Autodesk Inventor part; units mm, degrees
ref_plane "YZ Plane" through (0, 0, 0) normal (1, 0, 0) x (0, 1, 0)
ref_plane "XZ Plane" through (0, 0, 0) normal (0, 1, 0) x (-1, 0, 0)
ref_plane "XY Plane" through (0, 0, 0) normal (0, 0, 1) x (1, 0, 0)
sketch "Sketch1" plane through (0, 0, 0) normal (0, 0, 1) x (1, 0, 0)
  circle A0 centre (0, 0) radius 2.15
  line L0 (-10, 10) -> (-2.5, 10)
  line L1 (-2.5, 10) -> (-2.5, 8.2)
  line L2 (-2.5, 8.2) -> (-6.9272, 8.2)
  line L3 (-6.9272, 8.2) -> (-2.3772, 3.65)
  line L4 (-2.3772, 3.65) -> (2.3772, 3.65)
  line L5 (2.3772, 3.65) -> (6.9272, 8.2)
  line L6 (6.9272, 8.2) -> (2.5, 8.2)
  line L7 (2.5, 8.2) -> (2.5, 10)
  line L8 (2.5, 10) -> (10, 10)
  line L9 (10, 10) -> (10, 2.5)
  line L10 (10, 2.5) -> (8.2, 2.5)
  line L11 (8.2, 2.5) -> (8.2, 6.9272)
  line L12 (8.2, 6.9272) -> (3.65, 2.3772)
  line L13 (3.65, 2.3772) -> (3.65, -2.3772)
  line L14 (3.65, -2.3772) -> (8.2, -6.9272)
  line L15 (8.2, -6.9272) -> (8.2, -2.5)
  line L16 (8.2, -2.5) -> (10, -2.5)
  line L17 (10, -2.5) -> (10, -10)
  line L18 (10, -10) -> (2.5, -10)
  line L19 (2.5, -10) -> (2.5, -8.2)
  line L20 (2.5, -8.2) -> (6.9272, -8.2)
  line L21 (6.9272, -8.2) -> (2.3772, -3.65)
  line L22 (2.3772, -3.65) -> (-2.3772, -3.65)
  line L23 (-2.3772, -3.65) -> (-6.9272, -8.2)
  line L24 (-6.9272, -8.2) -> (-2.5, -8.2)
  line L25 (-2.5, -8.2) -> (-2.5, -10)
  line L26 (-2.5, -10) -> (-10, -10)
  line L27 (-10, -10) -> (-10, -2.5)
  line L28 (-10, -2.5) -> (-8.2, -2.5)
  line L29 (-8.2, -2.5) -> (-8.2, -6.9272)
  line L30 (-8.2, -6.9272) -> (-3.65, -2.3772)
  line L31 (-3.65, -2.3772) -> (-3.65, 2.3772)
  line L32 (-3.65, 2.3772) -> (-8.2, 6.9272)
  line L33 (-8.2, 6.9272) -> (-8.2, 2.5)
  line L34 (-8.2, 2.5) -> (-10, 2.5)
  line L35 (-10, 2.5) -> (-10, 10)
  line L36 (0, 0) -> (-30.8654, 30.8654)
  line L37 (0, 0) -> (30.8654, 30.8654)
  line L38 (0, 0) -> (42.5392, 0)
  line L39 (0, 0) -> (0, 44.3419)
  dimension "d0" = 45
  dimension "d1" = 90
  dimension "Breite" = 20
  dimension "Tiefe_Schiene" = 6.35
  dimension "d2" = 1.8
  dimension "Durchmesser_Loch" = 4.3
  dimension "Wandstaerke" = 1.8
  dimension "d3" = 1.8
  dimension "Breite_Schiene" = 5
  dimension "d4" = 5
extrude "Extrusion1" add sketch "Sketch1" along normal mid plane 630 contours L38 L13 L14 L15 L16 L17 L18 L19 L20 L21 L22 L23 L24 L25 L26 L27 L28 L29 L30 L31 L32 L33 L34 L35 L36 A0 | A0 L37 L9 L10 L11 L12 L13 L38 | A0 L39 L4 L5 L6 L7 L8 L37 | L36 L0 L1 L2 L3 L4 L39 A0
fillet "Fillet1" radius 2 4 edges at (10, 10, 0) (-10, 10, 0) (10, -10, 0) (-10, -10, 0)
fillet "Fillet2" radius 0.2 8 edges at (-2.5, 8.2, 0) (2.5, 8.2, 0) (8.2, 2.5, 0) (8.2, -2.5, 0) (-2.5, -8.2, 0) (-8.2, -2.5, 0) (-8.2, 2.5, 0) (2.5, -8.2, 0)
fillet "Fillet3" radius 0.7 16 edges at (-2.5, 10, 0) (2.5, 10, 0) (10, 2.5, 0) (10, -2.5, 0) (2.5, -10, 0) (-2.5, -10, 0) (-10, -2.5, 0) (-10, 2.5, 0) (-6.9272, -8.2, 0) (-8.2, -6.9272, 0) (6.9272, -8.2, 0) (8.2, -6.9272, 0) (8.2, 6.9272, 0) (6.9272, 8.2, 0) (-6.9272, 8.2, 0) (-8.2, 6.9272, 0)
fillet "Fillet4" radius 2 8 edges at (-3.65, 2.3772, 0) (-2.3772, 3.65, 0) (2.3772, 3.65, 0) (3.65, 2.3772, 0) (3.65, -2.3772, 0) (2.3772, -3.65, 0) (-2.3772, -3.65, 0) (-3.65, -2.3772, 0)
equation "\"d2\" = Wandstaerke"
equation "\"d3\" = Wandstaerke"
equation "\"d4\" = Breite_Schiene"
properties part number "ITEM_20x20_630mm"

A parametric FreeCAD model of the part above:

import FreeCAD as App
import Part
import Sketcher
from FreeCAD import Vector


def edges_at(feature, points):
    """Names of the edges that pass closest to the given points."""
    edges = feature.Shape.Edges
    near = lambda p: min(range(len(edges)), key=lambda i: edges[i].distToShape(Part.Vertex(*p))[0])
    return sorted({f"Edge{near(p) + 1}" for p in points})

doc = App.newDocument("Part")
params = doc.addObject("Spreadsheet::Sheet", "Params")
for row, (alias, value) in enumerate([
    ("sketch1_diameter", "4.3 mm"),
    ("sketch1_width", "1.8 mm"),
    ("sketch1_width2", "7.5 mm"),
    ("pad1_length", "630 mm"),
    ("fillet_radius", "2 mm"),
    ("fillet2_radius", "0.2 mm"),
    ("fillet3_radius", "0.7 mm"),
    ("fillet4_radius", "2 mm"),
], start=1):
    params.set(f"A{row}", alias)
    params.set(f"B{row}", "=" + value)
    params.setAlias(f"B{row}", alias)

body = doc.addObject("PartDesign::Body", "Body")

sketch1 = body.newObject("Sketcher::SketchObject", "Sketch")
sketch1.AttachmentSupport = (doc.getObject("XY_Plane"), [""])
sketch1.MapMode = "FlatFace"
sketch1.addGeometry([
    Part.LineSegment(Vector(3.6, -2.4, 0), Vector(3.6, 2.4, 0)),
    Part.LineSegment(Vector(3.6, 2.4, 0), Vector(8.2, 6.9, 0)),
    Part.LineSegment(Vector(8.2, 6.9, 0), Vector(8.2, 2.5, 0)),
    Part.LineSegment(Vector(8.2, 2.5, 0), Vector(10, 2.5, 0)),
    Part.LineSegment(Vector(10, 2.5, 0), Vector(10, 10, 0)),
    Part.LineSegment(Vector(10, 10, 0), Vector(2.5, 10, 0)),
    Part.LineSegment(Vector(2.5, 10, 0), Vector(2.5, 8.2, 0)),
    Part.LineSegment(Vector(2.5, 8.2, 0), Vector(6.9, 8.2, 0)),
    Part.LineSegment(Vector(6.9, 8.2, 0), Vector(2.4, 3.6, 0)),
    Part.LineSegment(Vector(2.4, 3.6, 0), Vector(-2.4, 3.6, 0)),
    Part.LineSegment(Vector(-2.4, 3.6, 0), Vector(-6.9, 8.2, 0)),
    Part.LineSegment(Vector(-6.9, 8.2, 0), Vector(-2.5, 8.2, 0)),
    Part.LineSegment(Vector(-2.5, 8.2, 0), Vector(-2.5, 10, 0)),
    Part.LineSegment(Vector(-2.5, 10, 0), Vector(-10, 10, 0)),
    Part.LineSegment(Vector(-10, 10, 0), Vector(-10, 2.5, 0)),
    Part.LineSegment(Vector(-10, 2.5, 0), Vector(-8.2, 2.5, 0)),
    Part.LineSegment(Vector(-8.2, 2.5, 0), Vector(-8.2, 6.9, 0)),
    Part.LineSegment(Vector(-8.2, 6.9, 0), Vector(-3.6, 2.4, 0)),
    Part.LineSegment(Vector(-3.6, 2.4, 0), Vector(-3.6, -2.4, 0)),
    Part.LineSegment(Vector(-3.6, -2.4, 0), Vector(-8.2, -6.9, 0)),
    Part.LineSegment(Vector(-8.2, -6.9, 0), Vector(-8.2, -2.5, 0)),
    Part.LineSegment(Vector(-8.2, -2.5, 0), Vector(-10, -2.5, 0)),
    Part.LineSegment(Vector(-10, -2.5, 0), Vector(-10, -10, 0)),
    Part.LineSegment(Vector(-10, -10, 0), Vector(-2.5, -10, 0)),
    Part.LineSegment(Vector(-2.5, -10, 0), Vector(-2.5, -8.2, 0)),
    Part.LineSegment(Vector(-2.5, -8.2, 0), Vector(-6.9, -8.2, 0)),
    Part.LineSegment(Vector(-6.9, -8.2, 0), Vector(-2.4, -3.6, 0)),
    Part.LineSegment(Vector(-2.4, -3.6, 0), Vector(2.4, -3.6, 0)),
    Part.LineSegment(Vector(2.4, -3.6, 0), Vector(6.9, -8.2, 0)),
    Part.LineSegment(Vector(6.9, -8.2, 0), Vector(2.5, -8.2, 0)),
    Part.LineSegment(Vector(2.5, -8.2, 0), Vector(2.5, -10, 0)),
    Part.LineSegment(Vector(2.5, -10, 0), Vector(10, -10, 0)),
    Part.LineSegment(Vector(10, -10, 0), Vector(10, -2.5, 0)),
    Part.LineSegment(Vector(10, -2.5, 0), Vector(8.2, -2.5, 0)),
    Part.LineSegment(Vector(8.2, -2.5, 0), Vector(8.2, -6.9, 0)),
    Part.LineSegment(Vector(8.2, -6.9, 0), Vector(3.6, -2.4, 0)),
    Part.Circle(Vector(0, 0, 0), Vector(0, 0, 1), 2.1),
], False)
sketch1.addConstraint([
    Sketcher.Constraint("Coincident", 0, 2, 1, 1),
    Sketcher.Constraint("Coincident", 1, 2, 2, 1),
    Sketcher.Constraint("Coincident", 2, 2, 3, 1),
    Sketcher.Constraint("Coincident", 3, 2, 4, 1),
    Sketcher.Constraint("Coincident", 4, 2, 5, 1),
    Sketcher.Constraint("Coincident", 5, 2, 6, 1),
    Sketcher.Constraint("Coincident", 6, 2, 7, 1),
    Sketcher.Constraint("Coincident", 7, 2, 8, 1),
    Sketcher.Constraint("Coincident", 8, 2, 9, 1),
    Sketcher.Constraint("Coincident", 9, 2, 10, 1),
    Sketcher.Constraint("Coincident", 10, 2, 11, 1),
    Sketcher.Constraint("Coincident", 11, 2, 12, 1),
    Sketcher.Constraint("Coincident", 12, 2, 13, 1),
    Sketcher.Constraint("Coincident", 13, 2, 14, 1),
    Sketcher.Constraint("Coincident", 14, 2, 15, 1),
    Sketcher.Constraint("Coincident", 15, 2, 16, 1),
    Sketcher.Constraint("Coincident", 16, 2, 17, 1),
    Sketcher.Constraint("Coincident", 17, 2, 18, 1),
    Sketcher.Constraint("Coincident", 18, 2, 19, 1),
    Sketcher.Constraint("Coincident", 19, 2, 20, 1),
    Sketcher.Constraint("Coincident", 20, 2, 21, 1),
    Sketcher.Constraint("Coincident", 21, 2, 22, 1),
    Sketcher.Constraint("Coincident", 22, 2, 23, 1),
    Sketcher.Constraint("Coincident", 23, 2, 24, 1),
    Sketcher.Constraint("Coincident", 24, 2, 25, 1),
    Sketcher.Constraint("Coincident", 25, 2, 26, 1),
    Sketcher.Constraint("Coincident", 26, 2, 27, 1),
    Sketcher.Constraint("Coincident", 27, 2, 28, 1),
    Sketcher.Constraint("Coincident", 28, 2, 29, 1),
    Sketcher.Constraint("Coincident", 29, 2, 30, 1),
    Sketcher.Constraint("Coincident", 30, 2, 31, 1),
    Sketcher.Constraint("Coincident", 31, 2, 32, 1),
    Sketcher.Constraint("Coincident", 32, 2, 33, 1),
    Sketcher.Constraint("Coincident", 33, 2, 34, 1),
    Sketcher.Constraint("Coincident", 34, 2, 35, 1),
    Sketcher.Constraint("Coincident", 35, 2, 0, 1),
    Sketcher.Constraint("Vertical", 0),
    Sketcher.Constraint("Vertical", 2),
    Sketcher.Constraint("Horizontal", 3),
    Sketcher.Constraint("Vertical", 4),
    Sketcher.Constraint("Horizontal", 5),
    Sketcher.Constraint("Vertical", 6),
    Sketcher.Constraint("Horizontal", 7),
    Sketcher.Constraint("Horizontal", 9),
    Sketcher.Constraint("Horizontal", 11),
    Sketcher.Constraint("Vertical", 12),
    Sketcher.Constraint("Horizontal", 13),
    Sketcher.Constraint("Vertical", 14),
    Sketcher.Constraint("Horizontal", 15),
    Sketcher.Constraint("Vertical", 16),
    Sketcher.Constraint("Vertical", 18),
    Sketcher.Constraint("Vertical", 20),
    Sketcher.Constraint("Horizontal", 21),
    Sketcher.Constraint("Vertical", 22),
    Sketcher.Constraint("Horizontal", 23),
    Sketcher.Constraint("Vertical", 24),
    Sketcher.Constraint("Horizontal", 25),
    Sketcher.Constraint("Horizontal", 27),
    Sketcher.Constraint("Horizontal", 29),
    Sketcher.Constraint("Vertical", 30),
    Sketcher.Constraint("Horizontal", 31),
    Sketcher.Constraint("Vertical", 32),
    Sketcher.Constraint("Horizontal", 33),
    Sketcher.Constraint("Vertical", 34),
    Sketcher.Constraint("Coincident", 36, 3, -1, 1),
    Sketcher.Constraint("Symmetric", 0, 2, 18, 2, -1, 1),
    Sketcher.Constraint("Symmetric", 1, 2, 19, 2, -1, 1),
    Sketcher.Constraint("Symmetric", 3, 2, 21, 2, -1, 1),
    Sketcher.Constraint("Symmetric", 5, 2, 23, 2, -1, 1),
    Sketcher.Constraint("Symmetric", 7, 2, 25, 2, -1, 1),
    Sketcher.Constraint("Symmetric", 8, 2, 26, 2, -1, 1),
    Sketcher.Constraint("Symmetric", 10, 2, 28, 2, -1, 1),
    Sketcher.Constraint("Symmetric", 12, 2, 30, 2, -1, 1),
    Sketcher.Constraint("Symmetric", 14, 2, 32, 2, -1, 1),
    Sketcher.Constraint("Symmetric", 16, 2, 34, 2, -1, 1),
    Sketcher.Constraint("Symmetric", 7, 2, 10, 2, -2),
    Sketcher.Constraint("Symmetric", 5, 2, 12, 2, -2),
    Sketcher.Constraint("Symmetric", 3, 2, 14, 2, -2),
    Sketcher.Constraint("Symmetric", 1, 2, 16, 2, -2),
    Sketcher.Constraint("Parallel", 1, 8),
    Sketcher.Constraint("Perpendicular", 8, 10),
    Sketcher.Constraint("Parallel", 10, 17),
    Sketcher.Constraint("Perpendicular", 26, 28),
    Sketcher.Constraint("Parallel", 28, 35),
    Sketcher.Constraint("Horizontal", 0, 2, 17, 2),
    Sketcher.Constraint("Equal", 27, 0),
    Sketcher.Constraint("Equal", 29, 2),
    Sketcher.Constraint("Equal", 31, 4),
    Sketcher.Constraint("Equal", 33, 6),
    Sketcher.Constraint("Equal", 1, 8),
    Sketcher.Constraint("Diameter", 36, 4.3),
    Sketcher.Constraint("DistanceX", 3, 1, 3, 2, 1.8),
    Sketcher.Constraint("DistanceX", 11, 2, 6, 2, 5.0),
    Sketcher.Constraint("DistanceX", 0, 2, 3, 2, 6.35),
    Sketcher.Constraint("DistanceX", 5, 2, 5, 1, 7.5),
    Sketcher.Constraint("DistanceX", 7, 1, 7, 2, 4.4272),
])
sketch1.setExpression("Constraints[90]", "Params.sketch1_diameter")
sketch1.setExpression("Constraints[91]", "Params.sketch1_width")
sketch1.setExpression("Constraints[94]", "Params.sketch1_width2")
pad1 = body.newObject("PartDesign::Pad", "Pad")
pad1.Profile = sketch1
pad1.setExpression("Length", "Params.pad1_length")
pad1.Midplane = True
doc.recompute()

fillet = body.newObject("PartDesign::Fillet", "Fillet")
fillet.Base = (pad1, edges_at(pad1, [
    (10, 10, 0),
    (-10, 10, 0),
    (10, -10, 0),
    (-10, -10, 0),
]))
fillet.setExpression("Radius", "Params.fillet_radius")
doc.recompute()

fillet2 = body.newObject("PartDesign::Fillet", "Fillet001")
fillet2.Base = (fillet, edges_at(fillet, [
    (-2.5, 8.2, 0),
    (2.5, 8.2, 0),
    (8.2, 2.5, 0),
    (8.2, -2.5, 0),
    (-2.5, -8.2, 0),
    (-8.2, -2.5, 0),
    (-8.2, 2.5, 0),
    (2.5, -8.2, 0),
]))
fillet2.setExpression("Radius", "Params.fillet2_radius")
doc.recompute()

fillet3 = body.newObject("PartDesign::Fillet", "Fillet002")
fillet3.Base = (fillet2, edges_at(fillet2, [
    (-2.5, 10, 0),
    (2.5, 10, 0),
    (10, 2.5, 0),
    (10, -2.5, 0),
    (2.5, -10, 0),
    (-2.5, -10, 0),
    (-10, -2.5, 0),
    (-10, 2.5, 0),
    (-6.927, -8.2, 0),
    (-8.2, -6.927, 0),
    (6.927, -8.2, 0),
    (8.2, -6.927, 0),
    (8.2, 6.927, 0),
    (6.927, 8.2, 0),
    (-6.927, 8.2, 0),
    (-8.2, 6.927, 0),
]))
fillet3.setExpression("Radius", "Params.fillet3_radius")
doc.recompute()

fillet4 = body.newObject("PartDesign::Fillet", "Fillet003")
fillet4.Base = (fillet3, edges_at(fillet3, [
    (-3.65, 2.377, 0),
    (-2.377, 3.65, 0),
    (2.377, 3.65, 0),
    (3.65, 2.377, 0),
    (3.65, -2.377, 0),
    (2.377, -3.65, 0),
    (-2.377, -3.65, 0),
    (-3.65, -2.377, 0),
]))
fillet4.setExpression("Radius", "Params.fillet4_radius")

doc.recompute()
